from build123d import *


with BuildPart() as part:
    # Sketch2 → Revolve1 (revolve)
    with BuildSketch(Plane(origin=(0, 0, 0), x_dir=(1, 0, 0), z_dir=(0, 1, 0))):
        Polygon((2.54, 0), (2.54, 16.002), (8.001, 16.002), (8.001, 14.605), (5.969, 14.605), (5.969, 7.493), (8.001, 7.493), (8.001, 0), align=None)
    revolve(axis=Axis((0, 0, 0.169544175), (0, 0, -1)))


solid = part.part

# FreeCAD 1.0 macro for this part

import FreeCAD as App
import Part
import Sketcher

V = App.Vector
Q = App.Units.Quantity


def add_polygon(sketch, points):
    """Adds a closed chain of lines whose ends are joined by coincident constraints."""
    first, n = sketch.GeometryCount, len(points)
    for a, b in zip(points, points[1:] + points[:1]):
        sketch.addGeometry(Part.LineSegment(App.Vector(*a, 0), App.Vector(*b, 0)), False)
    for i in range(n):
        sketch.addConstraint(Sketcher.Constraint("Coincident", first + i, 2, first + (i + 1) % n, 1))

doc = App.newDocument("Part")
body = doc.addObject("PartDesign::Body", "Body")

sketch1 = body.newObject("Sketcher::SketchObject", "Sketch")
sketch1.AttachmentSupport = (doc.getObject("XZ_Plane"), [""])
sketch1.MapMode = "FlatFace"
add_polygon(sketch1, [(2.54, -16.002), (2.54, 0), (8.001, 0), (8.001, -7.493), (5.969, -7.493), (5.969, -14.605), (8.001, -14.605), (8.001, -16.002)])
sketch1.addConstraint([
    Sketcher.Constraint("Vertical", 0),
    Sketcher.Constraint("Horizontal", 1),
    Sketcher.Constraint("Vertical", 2),
    Sketcher.Constraint("Horizontal", 3),
    Sketcher.Constraint("Vertical", 4),
    Sketcher.Constraint("Horizontal", 5),
    Sketcher.Constraint("Vertical", 6),
    Sketcher.Constraint("Horizontal", 7),
    Sketcher.Constraint("PointOnObject", 0, 2, -1),
    Sketcher.Constraint("Vertical", 2, 2, 5, 2),
    Sketcher.Constraint("DistanceX", 3, 2, 3, 1, Q("0.08 in")),
    Sketcher.Constraint("DistanceY", 0, 1, 0, 2, Q("0.63 in")),
    Sketcher.Constraint("DistanceY", 4, 2, 4, 1, Q("0.28 in")),
    Sketcher.Constraint("DistanceX", -1, 1, 0, 2, Q("0.1 in")),
    Sketcher.Constraint("DistanceX", 1, 1, 1, 2, Q("0.215 in")),
    Sketcher.Constraint("DistanceY", 2, 2, 2, 1, Q("0.295 in")),
])
revolution = body.newObject("PartDesign::Revolution", "Revolution")
revolution.Profile = sketch1
revolution.ReferenceAxis = (sketch1, ["V_Axis"])
revolution.Angle = 360

doc.recompute()
